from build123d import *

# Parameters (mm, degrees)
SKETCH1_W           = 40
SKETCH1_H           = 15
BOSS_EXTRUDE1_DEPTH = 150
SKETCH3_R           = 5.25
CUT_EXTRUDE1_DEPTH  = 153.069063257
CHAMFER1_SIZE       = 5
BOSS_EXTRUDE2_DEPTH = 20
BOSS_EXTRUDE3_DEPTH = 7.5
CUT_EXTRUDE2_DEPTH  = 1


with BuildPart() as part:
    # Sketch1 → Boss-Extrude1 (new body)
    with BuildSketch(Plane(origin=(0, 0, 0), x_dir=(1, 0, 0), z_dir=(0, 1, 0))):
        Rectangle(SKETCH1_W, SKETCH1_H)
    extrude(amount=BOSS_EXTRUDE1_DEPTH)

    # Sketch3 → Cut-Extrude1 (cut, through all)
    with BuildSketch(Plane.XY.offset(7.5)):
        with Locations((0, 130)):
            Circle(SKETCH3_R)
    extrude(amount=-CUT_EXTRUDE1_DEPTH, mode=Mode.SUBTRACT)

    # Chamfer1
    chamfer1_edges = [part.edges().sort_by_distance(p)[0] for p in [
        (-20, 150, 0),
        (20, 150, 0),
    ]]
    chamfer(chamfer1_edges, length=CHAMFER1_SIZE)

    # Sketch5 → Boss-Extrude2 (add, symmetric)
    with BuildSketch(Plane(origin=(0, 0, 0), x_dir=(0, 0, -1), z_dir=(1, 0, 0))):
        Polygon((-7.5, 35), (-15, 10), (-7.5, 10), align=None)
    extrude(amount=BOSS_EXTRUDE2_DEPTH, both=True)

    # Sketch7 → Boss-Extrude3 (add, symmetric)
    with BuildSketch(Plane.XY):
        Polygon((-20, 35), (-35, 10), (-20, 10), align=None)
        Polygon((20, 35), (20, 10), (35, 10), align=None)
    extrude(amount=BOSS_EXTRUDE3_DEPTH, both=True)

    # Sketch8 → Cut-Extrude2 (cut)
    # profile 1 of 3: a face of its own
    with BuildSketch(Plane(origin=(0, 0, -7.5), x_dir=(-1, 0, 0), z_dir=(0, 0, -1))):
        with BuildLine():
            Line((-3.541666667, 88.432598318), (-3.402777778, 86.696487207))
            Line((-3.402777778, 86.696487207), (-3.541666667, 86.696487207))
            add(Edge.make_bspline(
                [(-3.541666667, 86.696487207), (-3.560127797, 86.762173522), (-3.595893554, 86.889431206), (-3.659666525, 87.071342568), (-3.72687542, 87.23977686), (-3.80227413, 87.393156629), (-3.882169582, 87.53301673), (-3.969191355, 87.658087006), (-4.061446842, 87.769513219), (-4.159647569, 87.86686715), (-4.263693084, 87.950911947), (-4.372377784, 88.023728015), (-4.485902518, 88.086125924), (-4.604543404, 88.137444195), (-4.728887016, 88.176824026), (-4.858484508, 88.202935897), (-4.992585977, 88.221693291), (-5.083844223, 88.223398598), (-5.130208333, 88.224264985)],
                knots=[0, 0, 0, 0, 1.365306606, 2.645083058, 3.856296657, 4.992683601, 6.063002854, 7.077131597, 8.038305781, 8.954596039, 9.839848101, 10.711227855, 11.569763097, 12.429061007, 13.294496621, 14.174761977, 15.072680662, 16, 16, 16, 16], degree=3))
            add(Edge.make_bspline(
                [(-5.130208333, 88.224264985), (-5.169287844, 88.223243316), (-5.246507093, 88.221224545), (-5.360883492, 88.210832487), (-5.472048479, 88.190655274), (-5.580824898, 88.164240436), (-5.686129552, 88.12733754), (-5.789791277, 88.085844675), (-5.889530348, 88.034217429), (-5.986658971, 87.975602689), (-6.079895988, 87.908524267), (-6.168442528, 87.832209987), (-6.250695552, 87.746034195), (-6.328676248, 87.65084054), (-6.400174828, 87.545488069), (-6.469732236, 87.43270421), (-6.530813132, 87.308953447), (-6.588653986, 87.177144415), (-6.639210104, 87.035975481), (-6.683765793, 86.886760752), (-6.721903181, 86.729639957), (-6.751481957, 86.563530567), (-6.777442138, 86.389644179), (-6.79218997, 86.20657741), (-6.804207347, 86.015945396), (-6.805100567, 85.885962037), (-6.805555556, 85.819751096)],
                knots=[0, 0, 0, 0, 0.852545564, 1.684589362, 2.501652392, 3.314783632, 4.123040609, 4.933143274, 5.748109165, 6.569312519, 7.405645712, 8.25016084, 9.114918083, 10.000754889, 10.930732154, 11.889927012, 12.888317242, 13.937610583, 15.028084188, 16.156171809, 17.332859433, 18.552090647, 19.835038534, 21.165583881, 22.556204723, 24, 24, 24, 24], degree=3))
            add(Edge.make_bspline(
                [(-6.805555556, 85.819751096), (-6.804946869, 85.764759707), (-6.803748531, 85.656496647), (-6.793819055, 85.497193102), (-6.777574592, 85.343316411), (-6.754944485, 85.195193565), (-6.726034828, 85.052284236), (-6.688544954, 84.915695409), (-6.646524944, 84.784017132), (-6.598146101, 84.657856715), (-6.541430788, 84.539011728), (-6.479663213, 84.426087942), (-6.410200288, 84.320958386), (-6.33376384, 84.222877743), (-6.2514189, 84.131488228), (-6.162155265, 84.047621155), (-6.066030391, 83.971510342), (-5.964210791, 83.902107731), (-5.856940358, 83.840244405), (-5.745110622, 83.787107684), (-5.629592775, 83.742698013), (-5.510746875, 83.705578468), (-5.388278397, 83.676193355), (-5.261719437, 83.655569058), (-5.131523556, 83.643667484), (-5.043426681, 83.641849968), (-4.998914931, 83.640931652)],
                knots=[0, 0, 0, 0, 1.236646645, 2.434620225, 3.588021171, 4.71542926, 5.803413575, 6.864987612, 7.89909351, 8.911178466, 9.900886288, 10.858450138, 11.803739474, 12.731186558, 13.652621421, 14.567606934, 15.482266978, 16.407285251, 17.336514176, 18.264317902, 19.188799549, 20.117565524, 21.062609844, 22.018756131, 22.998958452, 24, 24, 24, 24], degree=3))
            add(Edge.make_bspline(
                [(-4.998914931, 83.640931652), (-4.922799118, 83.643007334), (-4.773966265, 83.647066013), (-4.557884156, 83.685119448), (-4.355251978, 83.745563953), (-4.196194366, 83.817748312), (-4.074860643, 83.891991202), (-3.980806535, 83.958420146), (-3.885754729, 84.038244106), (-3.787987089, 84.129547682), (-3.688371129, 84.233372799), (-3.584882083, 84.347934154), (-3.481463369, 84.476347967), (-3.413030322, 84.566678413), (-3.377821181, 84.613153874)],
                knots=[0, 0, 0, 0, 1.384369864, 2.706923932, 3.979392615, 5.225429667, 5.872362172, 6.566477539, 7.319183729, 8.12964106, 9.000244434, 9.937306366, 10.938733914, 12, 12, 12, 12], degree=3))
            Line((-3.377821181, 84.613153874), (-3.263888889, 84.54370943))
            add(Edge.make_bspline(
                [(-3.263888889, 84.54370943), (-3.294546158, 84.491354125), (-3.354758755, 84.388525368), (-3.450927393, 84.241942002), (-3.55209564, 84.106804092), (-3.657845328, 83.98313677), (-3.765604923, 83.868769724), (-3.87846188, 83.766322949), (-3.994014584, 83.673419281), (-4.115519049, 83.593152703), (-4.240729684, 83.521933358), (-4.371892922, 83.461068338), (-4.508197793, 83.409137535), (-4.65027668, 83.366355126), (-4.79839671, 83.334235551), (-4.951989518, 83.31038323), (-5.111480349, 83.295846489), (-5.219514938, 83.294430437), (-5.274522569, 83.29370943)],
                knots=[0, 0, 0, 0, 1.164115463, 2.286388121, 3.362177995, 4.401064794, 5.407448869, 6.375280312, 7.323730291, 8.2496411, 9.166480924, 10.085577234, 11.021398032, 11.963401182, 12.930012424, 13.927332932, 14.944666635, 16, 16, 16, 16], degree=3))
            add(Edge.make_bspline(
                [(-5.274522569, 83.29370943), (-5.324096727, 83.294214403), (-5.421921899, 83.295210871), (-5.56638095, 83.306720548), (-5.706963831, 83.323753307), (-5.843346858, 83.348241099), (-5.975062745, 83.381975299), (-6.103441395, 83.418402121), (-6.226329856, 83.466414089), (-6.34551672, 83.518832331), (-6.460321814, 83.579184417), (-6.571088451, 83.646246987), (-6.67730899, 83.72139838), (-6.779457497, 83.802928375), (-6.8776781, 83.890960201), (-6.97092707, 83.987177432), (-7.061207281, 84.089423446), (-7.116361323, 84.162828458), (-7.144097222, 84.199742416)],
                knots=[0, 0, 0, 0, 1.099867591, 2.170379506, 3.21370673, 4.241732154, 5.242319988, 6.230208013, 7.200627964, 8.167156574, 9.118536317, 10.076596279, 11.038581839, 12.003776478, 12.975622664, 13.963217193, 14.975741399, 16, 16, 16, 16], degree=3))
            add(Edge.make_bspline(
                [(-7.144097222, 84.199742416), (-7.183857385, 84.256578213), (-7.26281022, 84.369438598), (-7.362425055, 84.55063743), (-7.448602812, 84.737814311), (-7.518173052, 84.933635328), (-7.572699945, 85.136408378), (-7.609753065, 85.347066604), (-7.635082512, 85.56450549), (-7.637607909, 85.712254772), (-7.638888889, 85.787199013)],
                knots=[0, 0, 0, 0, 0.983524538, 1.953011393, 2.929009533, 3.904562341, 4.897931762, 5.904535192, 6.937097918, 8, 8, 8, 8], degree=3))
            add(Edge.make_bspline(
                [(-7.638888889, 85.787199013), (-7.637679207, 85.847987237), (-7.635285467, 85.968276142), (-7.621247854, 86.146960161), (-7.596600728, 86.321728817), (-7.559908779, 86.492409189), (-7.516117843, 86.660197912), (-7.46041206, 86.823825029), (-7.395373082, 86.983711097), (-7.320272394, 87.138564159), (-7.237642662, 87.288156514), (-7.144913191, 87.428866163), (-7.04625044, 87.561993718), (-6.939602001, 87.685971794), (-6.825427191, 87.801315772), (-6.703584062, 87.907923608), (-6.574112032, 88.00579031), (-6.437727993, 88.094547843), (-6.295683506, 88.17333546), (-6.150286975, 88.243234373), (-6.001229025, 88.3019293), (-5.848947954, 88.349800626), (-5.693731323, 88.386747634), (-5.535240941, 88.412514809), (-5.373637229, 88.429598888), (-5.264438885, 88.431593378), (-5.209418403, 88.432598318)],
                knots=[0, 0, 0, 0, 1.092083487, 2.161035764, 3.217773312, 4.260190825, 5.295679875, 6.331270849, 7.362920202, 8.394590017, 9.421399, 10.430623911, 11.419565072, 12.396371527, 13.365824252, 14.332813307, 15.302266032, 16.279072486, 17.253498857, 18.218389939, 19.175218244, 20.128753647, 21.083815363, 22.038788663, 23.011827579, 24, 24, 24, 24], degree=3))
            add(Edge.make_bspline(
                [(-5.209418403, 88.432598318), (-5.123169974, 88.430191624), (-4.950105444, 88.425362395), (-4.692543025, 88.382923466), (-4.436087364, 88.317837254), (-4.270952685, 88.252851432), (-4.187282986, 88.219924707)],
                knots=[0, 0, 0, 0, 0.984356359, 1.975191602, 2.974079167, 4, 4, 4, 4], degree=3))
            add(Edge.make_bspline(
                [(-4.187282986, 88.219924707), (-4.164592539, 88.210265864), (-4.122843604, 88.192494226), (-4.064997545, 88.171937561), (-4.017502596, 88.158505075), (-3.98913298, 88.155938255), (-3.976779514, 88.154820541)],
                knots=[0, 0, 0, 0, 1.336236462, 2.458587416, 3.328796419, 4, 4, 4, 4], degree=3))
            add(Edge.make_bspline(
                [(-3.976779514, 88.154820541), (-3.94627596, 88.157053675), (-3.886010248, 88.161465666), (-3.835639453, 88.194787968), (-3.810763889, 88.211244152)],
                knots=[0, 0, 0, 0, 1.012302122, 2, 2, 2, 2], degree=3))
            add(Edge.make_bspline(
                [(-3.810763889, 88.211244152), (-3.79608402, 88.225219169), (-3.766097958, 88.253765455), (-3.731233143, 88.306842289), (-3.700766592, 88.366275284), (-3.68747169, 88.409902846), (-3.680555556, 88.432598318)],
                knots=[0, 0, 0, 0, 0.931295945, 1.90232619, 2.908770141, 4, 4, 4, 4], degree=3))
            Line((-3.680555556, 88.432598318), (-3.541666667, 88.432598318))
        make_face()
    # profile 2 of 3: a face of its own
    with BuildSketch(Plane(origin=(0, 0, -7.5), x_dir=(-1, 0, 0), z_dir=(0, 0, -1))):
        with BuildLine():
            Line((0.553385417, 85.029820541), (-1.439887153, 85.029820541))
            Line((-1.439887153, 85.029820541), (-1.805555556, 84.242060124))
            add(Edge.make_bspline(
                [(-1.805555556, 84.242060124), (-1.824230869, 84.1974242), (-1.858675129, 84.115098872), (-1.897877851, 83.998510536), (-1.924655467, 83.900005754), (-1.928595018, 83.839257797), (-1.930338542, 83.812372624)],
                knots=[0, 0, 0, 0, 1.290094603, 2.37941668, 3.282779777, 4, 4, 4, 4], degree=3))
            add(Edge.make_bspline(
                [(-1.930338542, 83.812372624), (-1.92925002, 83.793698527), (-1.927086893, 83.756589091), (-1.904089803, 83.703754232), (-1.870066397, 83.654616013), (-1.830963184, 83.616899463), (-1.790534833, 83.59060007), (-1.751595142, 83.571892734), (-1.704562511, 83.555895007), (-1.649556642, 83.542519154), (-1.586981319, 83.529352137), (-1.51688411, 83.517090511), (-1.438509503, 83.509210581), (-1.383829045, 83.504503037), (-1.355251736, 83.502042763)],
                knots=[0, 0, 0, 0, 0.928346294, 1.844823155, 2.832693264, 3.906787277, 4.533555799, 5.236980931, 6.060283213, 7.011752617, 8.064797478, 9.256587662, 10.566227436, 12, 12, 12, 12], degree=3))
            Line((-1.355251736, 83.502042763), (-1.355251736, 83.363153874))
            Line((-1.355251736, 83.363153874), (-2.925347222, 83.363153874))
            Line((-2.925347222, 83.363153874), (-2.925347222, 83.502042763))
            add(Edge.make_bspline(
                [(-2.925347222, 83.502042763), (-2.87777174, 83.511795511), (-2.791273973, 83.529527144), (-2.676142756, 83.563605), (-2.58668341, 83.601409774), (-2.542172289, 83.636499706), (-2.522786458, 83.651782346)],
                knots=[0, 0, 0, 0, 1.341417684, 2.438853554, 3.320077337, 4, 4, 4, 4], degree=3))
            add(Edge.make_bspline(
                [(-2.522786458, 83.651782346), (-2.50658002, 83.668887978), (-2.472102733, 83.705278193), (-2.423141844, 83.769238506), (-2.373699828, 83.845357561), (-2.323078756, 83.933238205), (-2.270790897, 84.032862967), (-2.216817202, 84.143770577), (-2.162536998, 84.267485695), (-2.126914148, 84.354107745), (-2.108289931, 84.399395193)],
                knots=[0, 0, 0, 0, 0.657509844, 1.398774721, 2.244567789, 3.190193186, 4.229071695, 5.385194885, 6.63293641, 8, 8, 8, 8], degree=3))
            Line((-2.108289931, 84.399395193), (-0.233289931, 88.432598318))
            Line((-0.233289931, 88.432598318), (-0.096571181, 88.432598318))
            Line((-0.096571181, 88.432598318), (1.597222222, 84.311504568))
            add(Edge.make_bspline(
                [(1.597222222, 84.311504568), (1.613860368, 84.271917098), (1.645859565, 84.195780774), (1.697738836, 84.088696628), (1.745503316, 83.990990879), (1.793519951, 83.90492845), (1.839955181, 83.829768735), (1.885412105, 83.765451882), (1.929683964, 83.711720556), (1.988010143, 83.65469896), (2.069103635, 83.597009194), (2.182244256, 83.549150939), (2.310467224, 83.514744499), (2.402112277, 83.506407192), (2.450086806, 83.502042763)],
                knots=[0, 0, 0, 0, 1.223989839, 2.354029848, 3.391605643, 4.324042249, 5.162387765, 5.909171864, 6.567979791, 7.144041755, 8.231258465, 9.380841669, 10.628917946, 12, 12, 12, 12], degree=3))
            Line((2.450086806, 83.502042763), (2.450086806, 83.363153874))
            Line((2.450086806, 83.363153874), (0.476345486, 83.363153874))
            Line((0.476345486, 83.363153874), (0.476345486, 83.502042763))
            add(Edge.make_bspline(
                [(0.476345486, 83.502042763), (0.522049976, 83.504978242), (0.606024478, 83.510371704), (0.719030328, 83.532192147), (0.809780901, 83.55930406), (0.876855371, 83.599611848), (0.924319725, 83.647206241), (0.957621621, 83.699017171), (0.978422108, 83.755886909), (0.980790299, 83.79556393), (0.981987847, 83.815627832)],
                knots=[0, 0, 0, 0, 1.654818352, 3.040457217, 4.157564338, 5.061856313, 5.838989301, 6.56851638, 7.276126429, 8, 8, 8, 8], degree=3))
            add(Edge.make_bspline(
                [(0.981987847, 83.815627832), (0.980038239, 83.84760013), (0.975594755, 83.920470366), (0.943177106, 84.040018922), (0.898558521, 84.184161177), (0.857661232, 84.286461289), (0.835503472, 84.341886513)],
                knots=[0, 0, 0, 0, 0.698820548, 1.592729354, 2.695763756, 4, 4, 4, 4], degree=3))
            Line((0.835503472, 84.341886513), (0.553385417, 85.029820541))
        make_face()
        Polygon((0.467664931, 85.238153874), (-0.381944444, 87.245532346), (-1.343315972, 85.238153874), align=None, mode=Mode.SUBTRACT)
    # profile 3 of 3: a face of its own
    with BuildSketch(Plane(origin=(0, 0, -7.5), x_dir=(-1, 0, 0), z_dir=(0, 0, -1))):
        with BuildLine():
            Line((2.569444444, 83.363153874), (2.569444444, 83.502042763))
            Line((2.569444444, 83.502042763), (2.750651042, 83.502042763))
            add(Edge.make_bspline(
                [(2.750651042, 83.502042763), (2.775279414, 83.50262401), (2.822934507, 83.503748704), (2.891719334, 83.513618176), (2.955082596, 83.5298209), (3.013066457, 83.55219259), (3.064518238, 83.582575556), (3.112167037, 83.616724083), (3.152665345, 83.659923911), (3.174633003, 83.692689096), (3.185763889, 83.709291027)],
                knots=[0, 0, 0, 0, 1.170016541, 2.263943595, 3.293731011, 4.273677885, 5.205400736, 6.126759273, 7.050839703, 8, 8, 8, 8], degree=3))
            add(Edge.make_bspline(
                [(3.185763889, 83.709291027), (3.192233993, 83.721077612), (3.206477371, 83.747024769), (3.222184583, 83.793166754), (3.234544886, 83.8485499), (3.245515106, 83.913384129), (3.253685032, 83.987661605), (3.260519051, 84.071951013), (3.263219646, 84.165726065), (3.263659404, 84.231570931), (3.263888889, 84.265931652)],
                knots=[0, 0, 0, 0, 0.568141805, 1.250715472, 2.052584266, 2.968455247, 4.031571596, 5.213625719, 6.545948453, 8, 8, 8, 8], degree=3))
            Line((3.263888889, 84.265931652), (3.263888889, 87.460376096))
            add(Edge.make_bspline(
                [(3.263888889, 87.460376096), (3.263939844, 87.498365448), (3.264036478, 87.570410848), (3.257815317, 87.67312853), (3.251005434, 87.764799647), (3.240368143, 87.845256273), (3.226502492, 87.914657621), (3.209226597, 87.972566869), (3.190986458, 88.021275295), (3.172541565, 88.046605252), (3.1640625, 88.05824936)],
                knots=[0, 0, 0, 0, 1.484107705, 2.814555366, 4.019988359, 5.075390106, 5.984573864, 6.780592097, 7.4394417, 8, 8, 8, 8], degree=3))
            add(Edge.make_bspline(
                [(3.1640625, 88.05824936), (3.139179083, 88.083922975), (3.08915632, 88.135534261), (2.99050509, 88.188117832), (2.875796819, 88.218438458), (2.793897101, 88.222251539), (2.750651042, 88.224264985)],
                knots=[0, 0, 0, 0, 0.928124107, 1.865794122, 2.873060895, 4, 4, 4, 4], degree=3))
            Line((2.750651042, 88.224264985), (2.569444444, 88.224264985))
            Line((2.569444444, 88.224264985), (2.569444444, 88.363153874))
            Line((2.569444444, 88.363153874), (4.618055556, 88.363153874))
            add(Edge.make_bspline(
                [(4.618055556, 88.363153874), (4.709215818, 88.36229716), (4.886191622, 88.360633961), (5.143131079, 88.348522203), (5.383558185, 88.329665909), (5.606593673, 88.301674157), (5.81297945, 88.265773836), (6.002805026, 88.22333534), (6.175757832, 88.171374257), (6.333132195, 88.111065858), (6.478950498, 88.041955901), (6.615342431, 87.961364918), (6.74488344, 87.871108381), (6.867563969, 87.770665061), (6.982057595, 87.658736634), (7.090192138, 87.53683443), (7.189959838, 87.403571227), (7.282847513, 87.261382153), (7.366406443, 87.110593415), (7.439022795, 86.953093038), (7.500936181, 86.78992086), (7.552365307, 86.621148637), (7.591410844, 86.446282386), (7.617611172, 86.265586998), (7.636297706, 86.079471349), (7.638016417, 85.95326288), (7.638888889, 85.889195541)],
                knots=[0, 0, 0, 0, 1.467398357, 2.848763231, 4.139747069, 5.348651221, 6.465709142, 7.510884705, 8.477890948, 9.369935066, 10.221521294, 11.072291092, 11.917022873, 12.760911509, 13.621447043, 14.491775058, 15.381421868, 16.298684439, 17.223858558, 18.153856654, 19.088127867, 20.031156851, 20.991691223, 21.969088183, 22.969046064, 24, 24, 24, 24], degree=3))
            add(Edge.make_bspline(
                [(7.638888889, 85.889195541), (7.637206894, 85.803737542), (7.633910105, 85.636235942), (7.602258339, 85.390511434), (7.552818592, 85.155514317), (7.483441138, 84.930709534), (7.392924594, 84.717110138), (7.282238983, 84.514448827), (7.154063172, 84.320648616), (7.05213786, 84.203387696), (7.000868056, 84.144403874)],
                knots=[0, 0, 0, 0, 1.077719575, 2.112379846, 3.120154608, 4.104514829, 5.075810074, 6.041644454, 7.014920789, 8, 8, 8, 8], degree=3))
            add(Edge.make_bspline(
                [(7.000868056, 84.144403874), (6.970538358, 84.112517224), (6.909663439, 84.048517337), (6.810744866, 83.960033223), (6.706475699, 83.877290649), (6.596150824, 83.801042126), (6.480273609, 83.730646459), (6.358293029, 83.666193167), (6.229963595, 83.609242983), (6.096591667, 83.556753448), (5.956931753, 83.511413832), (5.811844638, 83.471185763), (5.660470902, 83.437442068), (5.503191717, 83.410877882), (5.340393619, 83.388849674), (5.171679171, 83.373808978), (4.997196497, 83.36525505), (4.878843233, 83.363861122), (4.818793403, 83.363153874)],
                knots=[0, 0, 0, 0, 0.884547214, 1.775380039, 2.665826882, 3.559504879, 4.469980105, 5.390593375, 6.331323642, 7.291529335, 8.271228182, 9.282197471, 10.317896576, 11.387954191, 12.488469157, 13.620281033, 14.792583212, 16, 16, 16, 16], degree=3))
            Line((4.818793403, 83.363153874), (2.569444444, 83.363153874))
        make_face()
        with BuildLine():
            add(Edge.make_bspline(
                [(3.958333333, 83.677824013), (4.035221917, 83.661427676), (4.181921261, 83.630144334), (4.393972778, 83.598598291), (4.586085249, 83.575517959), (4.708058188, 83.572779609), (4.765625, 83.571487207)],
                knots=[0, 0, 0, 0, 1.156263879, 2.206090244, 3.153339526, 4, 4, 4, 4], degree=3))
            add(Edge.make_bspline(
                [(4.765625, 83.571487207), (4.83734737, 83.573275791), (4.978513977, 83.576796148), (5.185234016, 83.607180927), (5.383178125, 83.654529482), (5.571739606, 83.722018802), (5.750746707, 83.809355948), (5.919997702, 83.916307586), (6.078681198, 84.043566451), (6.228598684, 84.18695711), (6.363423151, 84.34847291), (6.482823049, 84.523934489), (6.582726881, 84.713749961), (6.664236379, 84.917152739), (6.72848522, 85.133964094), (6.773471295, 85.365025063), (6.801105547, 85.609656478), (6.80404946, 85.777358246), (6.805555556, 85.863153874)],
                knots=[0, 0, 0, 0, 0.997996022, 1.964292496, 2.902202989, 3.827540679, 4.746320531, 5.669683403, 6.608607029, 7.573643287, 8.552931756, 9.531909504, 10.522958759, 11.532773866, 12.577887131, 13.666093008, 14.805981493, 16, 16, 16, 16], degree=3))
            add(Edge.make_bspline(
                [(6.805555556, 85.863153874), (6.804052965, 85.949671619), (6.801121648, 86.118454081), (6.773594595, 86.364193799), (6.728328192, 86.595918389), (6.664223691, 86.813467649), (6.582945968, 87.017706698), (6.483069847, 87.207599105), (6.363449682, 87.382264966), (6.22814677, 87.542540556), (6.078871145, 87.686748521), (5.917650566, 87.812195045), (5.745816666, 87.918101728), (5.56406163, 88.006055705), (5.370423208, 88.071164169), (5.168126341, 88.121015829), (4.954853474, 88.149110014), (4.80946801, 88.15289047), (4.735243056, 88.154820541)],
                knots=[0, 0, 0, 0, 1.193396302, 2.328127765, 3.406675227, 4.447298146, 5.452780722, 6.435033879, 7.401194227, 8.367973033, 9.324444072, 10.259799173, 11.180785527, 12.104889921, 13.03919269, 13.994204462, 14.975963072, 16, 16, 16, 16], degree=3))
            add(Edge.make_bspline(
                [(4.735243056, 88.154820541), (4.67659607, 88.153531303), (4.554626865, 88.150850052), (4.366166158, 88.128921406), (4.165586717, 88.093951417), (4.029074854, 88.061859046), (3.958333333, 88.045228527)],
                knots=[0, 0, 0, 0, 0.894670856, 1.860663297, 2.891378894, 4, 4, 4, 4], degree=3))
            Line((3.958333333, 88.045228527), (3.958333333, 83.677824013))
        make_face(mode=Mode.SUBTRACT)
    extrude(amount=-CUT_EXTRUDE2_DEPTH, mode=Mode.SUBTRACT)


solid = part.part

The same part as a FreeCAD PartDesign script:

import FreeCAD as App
import Part
import Sketcher

V = App.Vector


def edges_at(feature, points):
    """Names of the edges that pass closest to the given points."""
    edges = feature.Shape.Edges
    near = lambda p: min(range(len(edges)), key=lambda i: edges[i].distToShape(Part.Vertex(*p))[0])
    return sorted({f"Edge{near(p) + 1}" for p in points})


def add_polygon(sketch, points):
    """Adds a closed chain of lines whose ends are joined by coincident constraints."""
    first, n = sketch.GeometryCount, len(points)
    for a, b in zip(points, points[1:] + points[:1]):
        sketch.addGeometry(Part.LineSegment(App.Vector(*a, 0), App.Vector(*b, 0)), False)
    for i in range(n):
        sketch.addConstraint(Sketcher.Constraint("Coincident", first + i, 2, first + (i + 1) % n, 1))

doc = App.newDocument("Part")
body = doc.addObject("PartDesign::Body", "Body")

# Sketch on XZ plane
sketch1 = body.newObject("Sketcher::SketchObject", "Sketch")
sketch1.AttachmentSupport = (doc.getObject("XZ_Plane"), [""])
sketch1.MapMode = "FlatFace"
add_polygon(sketch1, [(-20, -8), (-20, 8), (20, 8), (20, -8)])  # lines 0-3
sketch1.addConstraint([
    Sketcher.Constraint("Vertical", 0),
    Sketcher.Constraint("Horizontal", 1),
    Sketcher.Constraint("Vertical", 2),
    Sketcher.Constraint("Horizontal", 3),
    Sketcher.Constraint("Symmetric", 0, 2, 2, 2, -1, 1),
    Sketcher.Constraint("DistanceX", 1, 1, 1, 2, 40.0),
    Sketcher.Constraint("DistanceY", 0, 1, 0, 2, 15.0),
])
pad1 = body.newObject("PartDesign::Pad", "Pad")
pad1.Profile = sketch1
pad1.Length = 150
pad1.Reversed = True

# Sketch on XY plane
sketch2 = body.newObject("Sketcher::SketchObject", "Sketch001")
sketch2.AttachmentSupport = (doc.getObject("XY_Plane"), [""])
sketch2.MapMode = "FlatFace"
sketch2.AttachmentOffset = App.Placement(V(0, 0, 7.5), App.Rotation())
sketch2.addGeometry(Part.Circle(V(0, 130, 0), V(0, 0, 1), 5), False)
sketch2.addConstraint([
    Sketcher.Constraint("PointOnObject", 0, 3, -2),
    Sketcher.Constraint("Diameter", 0, 10.5),
    Sketcher.Constraint("DistanceY", -1, 1, 0, 3, 130.0),
])
pocket1 = body.newObject("PartDesign::Pocket", "Pocket")
pocket1.Profile = sketch2
pocket1.Type = "ThroughAll"
doc.recompute()

chamfer = body.newObject("PartDesign::Chamfer", "Chamfer")
chamfer.Base = (pocket1, edges_at(pocket1, [(-20, 150, 0), (20, 150, 0)]))
chamfer.Size = 5

# Sketch on YZ plane
sketch3 = body.newObject("Sketcher::SketchObject", "Sketch002")
sketch3.AttachmentSupport = (doc.getObject("YZ_Plane"), [""])
sketch3.MapMode = "FlatFace"
add_polygon(sketch3, [(35, 8), (10, 15), (10, 8)])  # lines 0-2
sketch3.addConstraint([
    Sketcher.Constraint("Vertical", 1),
    Sketcher.Constraint("Horizontal", 2),
    Sketcher.Constraint("DistanceX", 2, 1, 2, 2, 25.0),
    Sketcher.Constraint("DistanceY", 1, 2, 1, 1, 7.5),
    Sketcher.Constraint("DistanceX", -1, 1, 0, 2, 10.0),
    Sketcher.Constraint("DistanceY", -1, 1, 0, 2, 15.0),
])
pad2 = body.newObject("PartDesign::Pad", "Pad001")
pad2.Profile = sketch3
pad2.Length = 40
pad2.Midplane = True

# Sketch on XY plane
sketch4 = body.newObject("Sketcher::SketchObject", "Sketch003")
sketch4.AttachmentSupport = (doc.getObject("XY_Plane"), [""])
sketch4.MapMode = "FlatFace"
add_polygon(sketch4, [(-20, 35), (-35, 10), (-20, 10)])  # lines 0-2
add_polygon(sketch4, [(20, 35), (20, 10), (35, 10)])  # lines 3-5
sketch4.addConstraint([
    Sketcher.Constraint("Horizontal", 1),
    Sketcher.Constraint("Vertical", 2),
    Sketcher.Constraint("Vertical", 3),
    Sketcher.Constraint("Horizontal", 4),
    Sketcher.Constraint("Symmetric", 1, 2, 3, 2, -2),
    Sketcher.Constraint("Horizontal", 2, 2, 5, 2),
    Sketcher.Constraint("Equal", 1, 4),
    Sketcher.Constraint("DistanceX", 1, 1, 1, 2, 15.0),
    Sketcher.Constraint("DistanceY", 2, 1, 2, 2, 25.0),
    Sketcher.Constraint("DistanceX", 0, 2, -1, 1, 35.0),
    Sketcher.Constraint("DistanceY", -1, 1, 0, 2, 10.0),
])
pad3 = body.newObject("PartDesign::Pad", "Pad002")
pad3.Profile = sketch4
pad3.Length = 15
pad3.Midplane = True

# Sketch on XY plane
sketch5 = body.newObject("Sketcher::SketchObject", "Sketch004")
sketch5.AttachmentSupport = (doc.getObject("XY_Plane"), [""])
sketch5.MapMode = "FlatFace"
sketch5.AttachmentOffset = App.Placement(V(0, 0, -7.5), App.Rotation())
sketch5.addGeometry(Part.LineSegment(V(3.402778, 86.696487, 0), V(3.541667, 88.432598, 0)), False)  # 0
sketch5.addGeometry(Part.LineSegment(V(3.541667, 88.432598, 0), V(3.680556, 88.432598, 0)), False)  # 1
sketch5.addGeometry(Part.BSplineCurve([V(3.810764, 88.211244, 0), V(3.796084, 88.225219, 0), V(3.766098, 88.253765, 0), V(3.731233, 88.306842, 0), V(3.700767, 88.366275, 0), V(3.687472, 88.409903, 0), V(3.680556, 88.432598, 0)], [4, 1, 1, 1, 4], [0, 0.931295945, 1.90232619, 2.908770141, 4], False, 3, [1, 1, 1, 1, 1, 1, 1], False), False)  # 2
sketch5.addGeometry(Part.BSplineCurve([V(3.97678, 88.154821, 0), V(3.946276, 88.157054, 0), V(3.88601, 88.161466, 0), V(3.835639, 88.194788, 0), V(3.810764, 88.211244, 0)], [4, 1, 4], [0, 1.012302122, 2], False, 3, [1, 1, 1, 1, 1], False), False)  # 3
sketch5.addGeometry(Part.BSplineCurve([V(4.187283, 88.219925, 0), V(4.164593, 88.210266, 0), V(4.122844, 88.192494, 0), V(4.064998, 88.171938, 0), V(4.017503, 88.158505, 0), V(3.989133, 88.155938, 0), V(3.97678, 88.154821, 0)], [4, 1, 1, 1, 4], [0, 1.336236462, 2.458587416, 3.328796419, 4], False, 3, [1, 1, 1, 1, 1, 1, 1], False), False)  # 4
sketch5.addGeometry(Part.BSplineCurve([V(5.209418, 88.432598, 0), V(5.12317, 88.430192, 0), V(4.950105, 88.425362, 0), V(4.692543, 88.382923, 0), V(4.436087, 88.317837, 0), V(4.270953, 88.252851, 0), V(4.187283, 88.219925, 0)], [4, 1, 1, 1, 4], [0, 0.984356359, 1.975191602, 2.974079167, 4], False, 3, [1, 1, 1, 1, 1, 1, 1], False), False)  # 5
sketch5.addGeometry(Part.BSplineCurve([V(7.638889, 85.787199, 0), V(7.637679, 85.847987, 0), V(7.635285, 85.968276, 0), V(7.621248, 86.14696, 0), V(7.596601, 86.321729, 0), V(7.559909, 86.492409, 0), V(7.516118, 86.660198, 0), V(7.460412, 86.823825, 0), V(7.395373, 86.983711, 0), V(7.320272, 87.138564, 0), V(7.237643, 87.288157, 0), V(7.144913, 87.428866, 0), V(7.04625, 87.561994, 0), V(6.939602, 87.685972, 0), V(6.825427, 87.801316, 0), V(6.703584, 87.907924, 0), V(6.574112, 88.00579, 0), V(6.437728, 88.094548, 0), V(6.295684, 88.173335, 0), V(6.150287, 88.243234, 0), V(6.001229, 88.301929, 0), V(5.848948, 88.349801, 0), V(5.693731, 88.386748, 0), V(5.535241, 88.412515, 0), V(5.373637, 88.429599, 0), V(5.264439, 88.431593, 0), V(5.209418, 88.432598, 0)], [4, 1, 1, 1, 1, 1, 1, 1, 1, 1, 1, 1, 1, 1, 1, 1, 1, 1, 1, 1, 1, 1, 1, 1, 4], [0, 1.092083487, 2.161035764, 3.217773312, 4.260190825, 5.295679875, 6.331270849, 7.362920202, 8.394590017, 9.421399, 10.430623911, 11.419565072, 12.396371527, 13.365824252, 14.332813307, 15.302266032, 16.279072486, 17.253498857, 18.218389939, 19.175218244, 20.128753647, 21.083815363, 22.038788663, 23.011827579, 24], False, 3, [1, 1, 1, 1, 1, 1, 1, 1, 1, 1, 1, 1, 1, 1, 1, 1, 1, 1, 1, 1, 1, 1, 1, 1, 1, 1, 1], False), False)  # 6
sketch5.addGeometry(Part.BSplineCurve([V(7.144097, 84.199742, 0), V(7.183857, 84.256578, 0), V(7.26281, 84.369439, 0), V(7.362425, 84.550637, 0), V(7.448603, 84.737814, 0), V(7.518173, 84.933635, 0), V(7.5727, 85.136408, 0), V(7.609753, 85.347067, 0), V(7.635083, 85.564505, 0), V(7.637608, 85.712255, 0), V(7.638889, 85.787199, 0)], [4, 1, 1, 1, 1, 1, 1, 1, 4], [0, 0.983524538, 1.953011393, 2.929009533, 3.904562341, 4.897931762, 5.904535192, 6.937097918, 8], False, 3, [1, 1, 1, 1, 1, 1, 1, 1, 1, 1, 1], False), False)  # 7
sketch5.addGeometry(Part.BSplineCurve([V(5.274523, 83.293709, 0), V(5.324097, 83.294214, 0), V(5.421922, 83.295211, 0), V(5.566381, 83.306721, 0), V(5.706964, 83.323753, 0), V(5.843347, 83.348241, 0), V(5.975063, 83.381975, 0), V(6.103441, 83.418402, 0), V(6.22633, 83.466414, 0), V(6.345517, 83.518832, 0), V(6.460322, 83.579184, 0), V(6.571088, 83.646247, 0), V(6.677309, 83.721398, 0), V(6.779457, 83.802928, 0), V(6.877678, 83.89096, 0), V(6.970927, 83.987177, 0), V(7.061207, 84.089423, 0), V(7.116361, 84.162828, 0), V(7.144097, 84.199742, 0)], [4, 1, 1, 1, 1, 1, 1, 1, 1, 1, 1, 1, 1, 1, 1, 1, 4], [0, 1.099867591, 2.170379506, 3.21370673, 4.241732154, 5.242319988, 6.230208013, 7.200627964, 8.167156574, 9.118536317, 10.076596279, 11.038581839, 12.003776478, 12.975622664, 13.963217193, 14.975741399, 16], False, 3, [1, 1, 1, 1, 1, 1, 1, 1, 1, 1, 1, 1, 1, 1, 1, 1, 1, 1, 1], False), False)  # 8
sketch5.addGeometry(Part.BSplineCurve([V(3.263889, 84.543709, 0), V(3.294546, 84.491354, 0), V(3.354759, 84.388525, 0), V(3.450927, 84.241942, 0), V(3.552096, 84.106804, 0), V(3.657845, 83.983137, 0), V(3.765605, 83.86877, 0), V(3.878462, 83.766323, 0), V(3.994015, 83.673419, 0), V(4.115519, 83.593153, 0), V(4.24073, 83.521933, 0), V(4.371893, 83.461068, 0), V(4.508198, 83.409138, 0), V(4.650277, 83.366355, 0), V(4.798397, 83.334236, 0), V(4.95199, 83.310383, 0), V(5.11148, 83.295846, 0), V(5.219515, 83.29443, 0), V(5.274523, 83.293709, 0)], [4, 1, 1, 1, 1, 1, 1, 1, 1, 1, 1, 1, 1, 1, 1, 1, 4], [0, 1.164115463, 2.286388121, 3.362177995, 4.401064794, 5.407448869, 6.375280312, 7.323730291, 8.2496411, 9.166480924, 10.085577234, 11.021398032, 11.963401182, 12.930012424, 13.927332932, 14.944666635, 16], False, 3, [1, 1, 1, 1, 1, 1, 1, 1, 1, 1, 1, 1, 1, 1, 1, 1, 1, 1, 1], False), False)  # 9
sketch5.addGeometry(Part.LineSegment(V(3.263889, 84.543709, 0), V(3.377821, 84.613154, 0)), False)  # 10
sketch5.addGeometry(Part.BSplineCurve([V(4.998915, 83.640932, 0), V(4.922799, 83.643007, 0), V(4.773966, 83.647066, 0), V(4.557884, 83.685119, 0), V(4.355252, 83.745564, 0), V(4.196194, 83.817748, 0), V(4.074861, 83.891991, 0), V(3.980807, 83.95842, 0), V(3.885755, 84.038244, 0), V(3.787987, 84.129548, 0), V(3.688371, 84.233373, 0), V(3.584882, 84.347934, 0), V(3.481463, 84.476348, 0), V(3.41303, 84.566678, 0), V(3.377821, 84.613154, 0)], [4, 1, 1, 1, 1, 1, 1, 1, 1, 1, 1, 1, 4], [0, 1.384369864, 2.706923932, 3.979392615, 5.225429667, 5.872362172, 6.566477539, 7.319183729, 8.12964106, 9.000244434, 9.937306366, 10.938733914, 12], False, 3, [1, 1, 1, 1, 1, 1, 1, 1, 1, 1, 1, 1, 1, 1, 1], False), False)  # 11
sketch5.addGeometry(Part.BSplineCurve([V(6.805556, 85.819751, 0), V(6.804947, 85.76476, 0), V(6.803749, 85.656497, 0), V(6.793819, 85.497193, 0), V(6.777575, 85.343316, 0), V(6.754944, 85.195194, 0), V(6.726035, 85.052284, 0), V(6.688545, 84.915695, 0), V(6.646525, 84.784017, 0), V(6.598146, 84.657857, 0), V(6.541431, 84.539012, 0), V(6.479663, 84.426088, 0), V(6.4102, 84.320958, 0), V(6.333764, 84.222878, 0), V(6.251419, 84.131488, 0), V(6.162155, 84.047621, 0), V(6.06603, 83.97151, 0), V(5.964211, 83.902108, 0), V(5.85694, 83.840244, 0), V(5.745111, 83.787108, 0), V(5.629593, 83.742698, 0), V(5.510747, 83.705578, 0), V(5.388278, 83.676193, 0), V(5.261719, 83.655569, 0), V(5.131524, 83.643667, 0), V(5.043427, 83.64185, 0), V(4.998915, 83.640932, 0)], [4, 1, 1, 1, 1, 1, 1, 1, 1, 1, 1, 1, 1, 1, 1, 1, 1, 1, 1, 1, 1, 1, 1, 1, 4], [0, 1.236646645, 2.434620225, 3.588021171, 4.71542926, 5.803413575, 6.864987612, 7.89909351, 8.911178466, 9.900886288, 10.858450138, 11.803739474, 12.731186558, 13.652621421, 14.567606934, 15.482266978, 16.407285251, 17.336514176, 18.264317902, 19.188799549, 20.117565524, 21.062609844, 22.018756131, 22.998958452, 24], False, 3, [1, 1, 1, 1, 1, 1, 1, 1, 1, 1, 1, 1, 1, 1, 1, 1, 1, 1, 1, 1, 1, 1, 1, 1, 1, 1, 1], False), False)  # 12
sketch5.addGeometry(Part.BSplineCurve([V(5.130208, 88.224265, 0), V(5.169288, 88.223243, 0), V(5.246507, 88.221225, 0), V(5.360883, 88.210832, 0), V(5.472048, 88.190655, 0), V(5.580825, 88.16424, 0), V(5.68613, 88.127338, 0), V(5.789791, 88.085845, 0), V(5.88953, 88.034217, 0), V(5.986659, 87.975603, 0), V(6.079896, 87.908524, 0), V(6.168443, 87.83221, 0), V(6.250696, 87.746034, 0), V(6.328676, 87.650841, 0), V(6.400175, 87.545488, 0), V(6.469732, 87.432704, 0), V(6.530813, 87.308953, 0), V(6.588654, 87.177144, 0), V(6.63921, 87.035975, 0), V(6.683766, 86.886761, 0), V(6.721903, 86.72964, 0), V(6.751482, 86.563531, 0), V(6.777442, 86.389644, 0), V(6.79219, 86.206577, 0), V(6.804207, 86.015945, 0), V(6.805101, 85.885962, 0), V(6.805556, 85.819751, 0)], [4, 1, 1, 1, 1, 1, 1, 1, 1, 1, 1, 1, 1, 1, 1, 1, 1, 1, 1, 1, 1, 1, 1, 1, 4], [0, 0.852545564, 1.684589362, 2.501652392, 3.314783632, 4.123040609, 4.933143274, 5.748109165, 6.569312519, 7.405645712, 8.25016084, 9.114918083, 10.000754889, 10.930732154, 11.889927012, 12.888317242, 13.937610583, 15.028084188, 16.156171809, 17.332859433, 18.552090647, 19.835038534, 21.165583881, 22.556204723, 24], False, 3, [1, 1, 1, 1, 1, 1, 1, 1, 1, 1, 1, 1, 1, 1, 1, 1, 1, 1, 1, 1, 1, 1, 1, 1, 1, 1, 1], False), False)  # 13
sketch5.addGeometry(Part.BSplineCurve([V(3.541667, 86.696487, 0), V(3.560128, 86.762174, 0), V(3.595894, 86.889431, 0), V(3.659667, 87.071343, 0), V(3.726875, 87.239777, 0), V(3.802274, 87.393157, 0), V(3.88217, 87.533017, 0), V(3.969191, 87.658087, 0), V(4.061447, 87.769513, 0), V(4.159648, 87.866867, 0), V(4.263693, 87.950912, 0), V(4.372378, 88.023728, 0), V(4.485903, 88.086126, 0), V(4.604543, 88.137444, 0), V(4.728887, 88.176824, 0), V(4.858485, 88.202936, 0), V(4.992586, 88.221693, 0), V(5.083844, 88.223399, 0), V(5.130208, 88.224265, 0)], [4, 1, 1, 1, 1, 1, 1, 1, 1, 1, 1, 1, 1, 1, 1, 1, 4], [0, 1.365306606, 2.645083058, 3.856296657, 4.992683601, 6.063002854, 7.077131597, 8.038305781, 8.954596039, 9.839848101, 10.711227855, 11.569763097, 12.429061007, 13.294496621, 14.174761977, 15.072680662, 16], False, 3, [1, 1, 1, 1, 1, 1, 1, 1, 1, 1, 1, 1, 1, 1, 1, 1, 1, 1, 1], False), False)  # 14
sketch5.addGeometry(Part.LineSegment(V(3.541667, 86.696487, 0), V(3.402778, 86.696487, 0)), False)  # 15
sketch5.addGeometry(Part.LineSegment(V(1.439887, 85.029821, 0), V(-0.553385, 85.029821, 0)), False)  # 16
sketch5.addGeometry(Part.LineSegment(V(-0.553385, 85.029821, 0), V(-0.835503, 84.341887, 0)), False)  # 17
sketch5.addGeometry(Part.BSplineCurve([V(-0.981988, 83.815628, 0), V(-0.980038, 83.8476, 0), V(-0.975595, 83.92047, 0), V(-0.943177, 84.040019, 0), V(-0.898559, 84.184161, 0), V(-0.857661, 84.286461, 0), V(-0.835503, 84.341887, 0)], [4, 1, 1, 1, 4], [0, 0.698820548, 1.592729354, 2.695763756, 4], False, 3, [1, 1, 1, 1, 1, 1, 1], False), False)  # 18
sketch5.addGeometry(Part.BSplineCurve([V(-0.476345, 83.502043, 0), V(-0.52205, 83.504978, 0), V(-0.606024, 83.510372, 0), V(-0.71903, 83.532192, 0), V(-0.809781, 83.559304, 0), V(-0.876855, 83.599612, 0), V(-0.92432, 83.647206, 0), V(-0.957622, 83.699017, 0), V(-0.978422, 83.755887, 0), V(-0.98079, 83.795564, 0), V(-0.981988, 83.815628, 0)], [4, 1, 1, 1, 1, 1, 1, 1, 4], [0, 1.654818352, 3.040457217, 4.157564338, 5.061856313, 5.838989301, 6.56851638, 7.276126429, 8], False, 3, [1, 1, 1, 1, 1, 1, 1, 1, 1, 1, 1], False), False)  # 19
sketch5.addGeometry(Part.LineSegment(V(-0.476345, 83.502043, 0), V(-0.476345, 83.363154, 0)), False)  # 20
sketch5.addGeometry(Part.LineSegment(V(-0.476345, 83.363154, 0), V(-2.450087, 83.363154, 0)), False)  # 21
sketch5.addGeometry(Part.LineSegment(V(-2.450087, 83.363154, 0), V(-2.450087, 83.502043, 0)), False)  # 22
sketch5.addGeometry(Part.BSplineCurve([V(-1.597222, 84.311505, 0), V(-1.61386, 84.271917, 0), V(-1.64586, 84.195781, 0), V(-1.697739, 84.088697, 0), V(-1.745503, 83.990991, 0), V(-1.79352, 83.904928, 0), V(-1.839955, 83.829769, 0), V(-1.885412, 83.765452, 0), V(-1.929684, 83.711721, 0), V(-1.98801, 83.654699, 0), V(-2.069104, 83.597009, 0), V(-2.182244, 83.549151, 0), V(-2.310467, 83.514744, 0), V(-2.402112, 83.506407, 0), V(-2.450087, 83.502043, 0)], [4, 1, 1, 1, 1, 1, 1, 1, 1, 1, 1, 1, 4], [0, 1.223989839, 2.354029848, 3.391605643, 4.324042249, 5.162387765, 5.909171864, 6.567979791, 7.144041755, 8.231258465, 9.380841669, 10.628917946, 12], False, 3, [1, 1, 1, 1, 1, 1, 1, 1, 1, 1, 1, 1, 1, 1, 1], False), False)  # 23
sketch5.addGeometry(Part.LineSegment(V(-1.597222, 84.311505, 0), V(0.096571, 88.432598, 0)), False)  # 24
sketch5.addGeometry(Part.LineSegment(V(0.096571, 88.432598, 0), V(0.23329, 88.432598, 0)), False)  # 25
sketch5.addGeometry(Part.LineSegment(V(0.23329, 88.432598, 0), V(2.10829, 84.399395, 0)), False)  # 26
sketch5.addGeometry(Part.BSplineCurve([V(2.522786, 83.651782, 0), V(2.50658, 83.668888, 0), V(2.472103, 83.705278, 0), V(2.423142, 83.769239, 0), V(2.3737, 83.845358, 0), V(2.323079, 83.933238, 0), V(2.270791, 84.032863, 0), V(2.216817, 84.143771, 0), V(2.162537, 84.267486, 0), V(2.126914, 84.354108, 0), V(2.10829, 84.399395, 0)], [4, 1, 1, 1, 1, 1, 1, 1, 4], [0, 0.657509844, 1.398774721, 2.244567789, 3.190193186, 4.229071695, 5.385194885, 6.63293641, 8], False, 3, [1, 1, 1, 1, 1, 1, 1, 1, 1, 1, 1], False), False)  # 27
sketch5.addGeometry(Part.BSplineCurve([V(2.925347, 83.502043, 0), V(2.877772, 83.511796, 0), V(2.791274, 83.529527, 0), V(2.676143, 83.563605, 0), V(2.586683, 83.60141, 0), V(2.542172, 83.6365, 0), V(2.522786, 83.651782, 0)], [4, 1, 1, 1, 4], [0, 1.341417684, 2.438853554, 3.320077337, 4], False, 3, [1, 1, 1, 1, 1, 1, 1], False), False)  # 28
sketch5.addGeometry(Part.LineSegment(V(2.925347, 83.502043, 0), V(2.925347, 83.363154, 0)), False)  # 29
sketch5.addGeometry(Part.LineSegment(V(2.925347, 83.363154, 0), V(1.355252, 83.363154, 0)), False)  # 30
sketch5.addGeometry(Part.LineSegment(V(1.355252, 83.363154, 0), V(1.355252, 83.502043, 0)), False)  # 31
sketch5.addGeometry(Part.BSplineCurve([V(1.930339, 83.812373, 0), V(1.92925, 83.793699, 0), V(1.927087, 83.756589, 0), V(1.90409, 83.703754, 0), V(1.870066, 83.654616, 0), V(1.830963, 83.616899, 0), V(1.790535, 83.5906, 0), V(1.751595, 83.571893, 0), V(1.704563, 83.555895, 0), V(1.649557, 83.542519, 0), V(1.586981, 83.529352, 0), V(1.516884, 83.517091, 0), V(1.43851, 83.509211, 0), V(1.383829, 83.504503, 0), V(1.355252, 83.502043, 0)], [4, 1, 1, 1, 1, 1, 1, 1, 1, 1, 1, 1, 4], [0, 0.928346294, 1.844823155, 2.832693264, 3.906787277, 4.533555799, 5.236980931, 6.060283213, 7.011752617, 8.064797478, 9.256587662, 10.566227436, 12], False, 3, [1, 1, 1, 1, 1, 1, 1, 1, 1, 1, 1, 1, 1, 1, 1], False), False)  # 32
sketch5.addGeometry(Part.BSplineCurve([V(1.805556, 84.24206, 0), V(1.824231, 84.197424, 0), V(1.858675, 84.115099, 0), V(1.897878, 83.998511, 0), V(1.924655, 83.900006, 0), V(1.928595, 83.839258, 0), V(1.930339, 83.812373, 0)], [4, 1, 1, 1, 4], [0, 1.290094603, 2.37941668, 3.282779777, 4], False, 3, [1, 1, 1, 1, 1, 1, 1], False), False)  # 33
sketch5.addGeometry(Part.LineSegment(V(1.805556, 84.24206, 0), V(1.439887, 85.029821, 0)), False)  # 34
add_polygon(sketch5, [(-0.467665, 85.238154), (1.343316, 85.238154), (0.381944, 87.245532)])  # lines 35-37
sketch5.addGeometry(Part.LineSegment(V(-2.569444, 83.502043, 0), V(-2.569444, 83.363154, 0)), False)  # 38
sketch5.addGeometry(Part.LineSegment(V(-2.569444, 83.363154, 0), V(-4.818793, 83.363154, 0)), False)  # 39
sketch5.addGeometry(Part.BSplineCurve([V(-7.000868, 84.144404, 0), V(-6.970538, 84.112517, 0), V(-6.909663, 84.048517, 0), V(-6.810745, 83.960033, 0), V(-6.706476, 83.877291, 0), V(-6.596151, 83.801042, 0), V(-6.480274, 83.730646, 0), V(-6.358293, 83.666193, 0), V(-6.229964, 83.609243, 0), V(-6.096592, 83.556753, 0), V(-5.956932, 83.511414, 0), V(-5.811845, 83.471186, 0), V(-5.660471, 83.437442, 0), V(-5.503192, 83.410878, 0), V(-5.340394, 83.38885, 0), V(-5.171679, 83.373809, 0), V(-4.997196, 83.365255, 0), V(-4.878843, 83.363861, 0), V(-4.818793, 83.363154, 0)], [4, 1, 1, 1, 1, 1, 1, 1, 1, 1, 1, 1, 1, 1, 1, 1, 4], [0, 0.884547214, 1.775380039, 2.665826882, 3.559504879, 4.469980105, 5.390593375, 6.331323642, 7.291529335, 8.271228182, 9.282197471, 10.317896576, 11.387954191, 12.488469157, 13.620281033, 14.792583212, 16], False, 3, [1, 1, 1, 1, 1, 1, 1, 1, 1, 1, 1, 1, 1, 1, 1, 1, 1, 1, 1], False), False)  # 40
sketch5.addGeometry(Part.BSplineCurve([V(-7.638889, 85.889196, 0), V(-7.637207, 85.803738, 0), V(-7.63391, 85.636236, 0), V(-7.602258, 85.390511, 0), V(-7.552819, 85.155514, 0), V(-7.483441, 84.93071, 0), V(-7.392925, 84.71711, 0), V(-7.282239, 84.514449, 0), V(-7.154063, 84.320649, 0), V(-7.052138, 84.203388, 0), V(-7.000868, 84.144404, 0)], [4, 1, 1, 1, 1, 1, 1, 1, 4], [0, 1.077719575, 2.112379846, 3.120154608, 4.104514829, 5.075810074, 6.041644454, 7.014920789, 8], False, 3, [1, 1, 1, 1, 1, 1, 1, 1, 1, 1, 1], False), False)  # 41
sketch5.addGeometry(Part.BSplineCurve([V(-4.618056, 88.363154, 0), V(-4.709216, 88.362297, 0), V(-4.886192, 88.360634, 0), V(-5.143131, 88.348522, 0), V(-5.383558, 88.329666, 0), V(-5.606594, 88.301674, 0), V(-5.812979, 88.265774, 0), V(-6.002805, 88.223335, 0), V(-6.175758, 88.171374, 0), V(-6.333132, 88.111066, 0), V(-6.47895, 88.041956, 0), V(-6.615342, 87.961365, 0), V(-6.744883, 87.871108, 0), V(-6.867564, 87.770665, 0), V(-6.982058, 87.658737, 0), V(-7.090192, 87.536834, 0), V(-7.18996, 87.403571, 0), V(-7.282848, 87.261382, 0), V(-7.366406, 87.110593, 0), V(-7.439023, 86.953093, 0), V(-7.500936, 86.789921, 0), V(-7.552365, 86.621149, 0), V(-7.591411, 86.446282, 0), V(-7.617611, 86.265587, 0), V(-7.636298, 86.079471, 0), V(-7.638016, 85.953263, 0), V(-7.638889, 85.889196, 0)], [4, 1, 1, 1, 1, 1, 1, 1, 1, 1, 1, 1, 1, 1, 1, 1, 1, 1, 1, 1, 1, 1, 1, 1, 4], [0, 1.467398357, 2.848763231, 4.139747069, 5.348651221, 6.465709142, 7.510884705, 8.477890948, 9.369935066, 10.221521294, 11.072291092, 11.917022873, 12.760911509, 13.621447043, 14.491775058, 15.381421868, 16.298684439, 17.223858558, 18.153856654, 19.088127867, 20.031156851, 20.991691223, 21.969088183, 22.969046064, 24], False, 3, [1, 1, 1, 1, 1, 1, 1, 1, 1, 1, 1, 1, 1, 1, 1, 1, 1, 1, 1, 1, 1, 1, 1, 1, 1, 1, 1], False), False)  # 42
sketch5.addGeometry(Part.LineSegment(V(-4.618056, 88.363154, 0), V(-2.569444, 88.363154, 0)), False)  # 43
sketch5.addGeometry(Part.LineSegment(V(-2.569444, 88.363154, 0), V(-2.569444, 88.224265, 0)), False)  # 44
sketch5.addGeometry(Part.LineSegment(V(-2.569444, 88.224265, 0), V(-2.750651, 88.224265, 0)), False)  # 45
sketch5.addGeometry(Part.BSplineCurve([V(-3.164062, 88.058249, 0), V(-3.139179, 88.083923, 0), V(-3.089156, 88.135534, 0), V(-2.990505, 88.188118, 0), V(-2.875797, 88.218438, 0), V(-2.793897, 88.222252, 0), V(-2.750651, 88.224265, 0)], [4, 1, 1, 1, 4], [0, 0.928124107, 1.865794122, 2.873060895, 4], False, 3, [1, 1, 1, 1, 1, 1, 1], False), False)  # 46
sketch5.addGeometry(Part.BSplineCurve([V(-3.263889, 87.460376, 0), V(-3.26394, 87.498365, 0), V(-3.264036, 87.570411, 0), V(-3.257815, 87.673129, 0), V(-3.251005, 87.7648, 0), V(-3.240368, 87.845256, 0), V(-3.226502, 87.914658, 0), V(-3.209227, 87.972567, 0), V(-3.190986, 88.021275, 0), V(-3.172542, 88.046605, 0), V(-3.164062, 88.058249, 0)], [4, 1, 1, 1, 1, 1, 1, 1, 4], [0, 1.484107705, 2.814555366, 4.019988359, 5.075390106, 5.984573864, 6.780592097, 7.4394417, 8], False, 3, [1, 1, 1, 1, 1, 1, 1, 1, 1, 1, 1], False), False)  # 47
sketch5.addGeometry(Part.LineSegment(V(-3.263889, 87.460376, 0), V(-3.263889, 84.265932, 0)), False)  # 48
sketch5.addGeometry(Part.BSplineCurve([V(-3.185764, 83.709291, 0), V(-3.192234, 83.721078, 0), V(-3.206477, 83.747025, 0), V(-3.222185, 83.793167, 0), V(-3.234545, 83.84855, 0), V(-3.245515, 83.913384, 0), V(-3.253685, 83.987662, 0), V(-3.260519, 84.071951, 0), V(-3.26322, 84.165726, 0), V(-3.263659, 84.231571, 0), V(-3.263889, 84.265932, 0)], [4, 1, 1, 1, 1, 1, 1, 1, 4], [0, 0.568141805, 1.250715472, 2.052584266, 2.968455247, 4.031571596, 5.213625719, 6.545948453, 8], False, 3, [1, 1, 1, 1, 1, 1, 1, 1, 1, 1, 1], False), False)  # 49
sketch5.addGeometry(Part.BSplineCurve([V(-2.750651, 83.502043, 0), V(-2.775279, 83.502624, 0), V(-2.822935, 83.503749, 0), V(-2.891719, 83.513618, 0), V(-2.955083, 83.529821, 0), V(-3.013066, 83.552193, 0), V(-3.064518, 83.582576, 0), V(-3.112167, 83.616724, 0), V(-3.152665, 83.659924, 0), V(-3.174633, 83.692689, 0), V(-3.185764, 83.709291, 0)], [4, 1, 1, 1, 1, 1, 1, 1, 4], [0, 1.170016541, 2.263943595, 3.293731011, 4.273677885, 5.205400736, 6.126759273, 7.050839703, 8], False, 3, [1, 1, 1, 1, 1, 1, 1, 1, 1, 1, 1], False), False)  # 50
sketch5.addGeometry(Part.LineSegment(V(-2.750651, 83.502043, 0), V(-2.569444, 83.502043, 0)), False)  # 51
sketch5.addGeometry(Part.LineSegment(V(-3.958333, 83.677824, 0), V(-3.958333, 88.045229, 0)), False)  # 52
sketch5.addGeometry(Part.BSplineCurve([V(-4.735243, 88.154821, 0), V(-4.676596, 88.153531, 0), V(-4.554627, 88.15085, 0), V(-4.366166, 88.128921, 0), V(-4.165587, 88.093951, 0), V(-4.029075, 88.061859, 0), V(-3.958333, 88.045229, 0)], [4, 1, 1, 1, 4], [0, 0.894670856, 1.860663297, 2.891378894, 4], False, 3, [1, 1, 1, 1, 1, 1, 1], False), False)  # 53
sketch5.addGeometry(Part.BSplineCurve([V(-6.805556, 85.863154, 0), V(-6.804053, 85.949672, 0), V(-6.801122, 86.118454, 0), V(-6.773595, 86.364194, 0), V(-6.728328, 86.595918, 0), V(-6.664224, 86.813468, 0), V(-6.582946, 87.017707, 0), V(-6.48307, 87.207599, 0), V(-6.36345, 87.382265, 0), V(-6.228147, 87.542541, 0), V(-6.078871, 87.686749, 0), V(-5.917651, 87.812195, 0), V(-5.745817, 87.918102, 0), V(-5.564062, 88.006056, 0), V(-5.370423, 88.071164, 0), V(-5.168126, 88.121016, 0), V(-4.954853, 88.14911, 0), V(-4.809468, 88.15289, 0), V(-4.735243, 88.154821, 0)], [4, 1, 1, 1, 1, 1, 1, 1, 1, 1, 1, 1, 1, 1, 1, 1, 4], [0, 1.193396302, 2.328127765, 3.406675227, 4.447298146, 5.452780722, 6.435033879, 7.401194227, 8.367973033, 9.324444072, 10.259799173, 11.180785527, 12.104889921, 13.03919269, 13.994204462, 14.975963072, 16], False, 3, [1, 1, 1, 1, 1, 1, 1, 1, 1, 1, 1, 1, 1, 1, 1, 1, 1, 1, 1], False), False)  # 54
sketch5.addGeometry(Part.BSplineCurve([V(-4.765625, 83.571487, 0), V(-4.837347, 83.573276, 0), V(-4.978514, 83.576796, 0), V(-5.185234, 83.607181, 0), V(-5.383178, 83.654529, 0), V(-5.57174, 83.722019, 0), V(-5.750747, 83.809356, 0), V(-5.919998, 83.916308, 0), V(-6.078681, 84.043566, 0), V(-6.228599, 84.186957, 0), V(-6.363423, 84.348473, 0), V(-6.482823, 84.523934, 0), V(-6.582727, 84.71375, 0), V(-6.664236, 84.917153, 0), V(-6.728485, 85.133964, 0), V(-6.773471, 85.365025, 0), V(-6.801106, 85.609656, 0), V(-6.804049, 85.777358, 0), V(-6.805556, 85.863154, 0)], [4, 1, 1, 1, 1, 1, 1, 1, 1, 1, 1, 1, 1, 1, 1, 1, 4], [0, 0.997996022, 1.964292496, 2.902202989, 3.827540679, 4.746320531, 5.669683403, 6.608607029, 7.573643287, 8.552931756, 9.531909504, 10.522958759, 11.532773866, 12.577887131, 13.666093008, 14.805981493, 16], False, 3, [1, 1, 1, 1, 1, 1, 1, 1, 1, 1, 1, 1, 1, 1, 1, 1, 1, 1, 1], False), False)  # 55
sketch5.addGeometry(Part.BSplineCurve([V(-3.958333, 83.677824, 0), V(-4.035222, 83.661428, 0), V(-4.181921, 83.630144, 0), V(-4.393973, 83.598598, 0), V(-4.586085, 83.575518, 0), V(-4.708058, 83.57278, 0), V(-4.765625, 83.571487, 0)], [4, 1, 1, 1, 4], [0, 1.156263879, 2.206090244, 3.153339526, 4], False, 3, [1, 1, 1, 1, 1, 1, 1], False), False)  # 56
sketch5.addConstraint([
    Sketcher.Constraint("Block", 2),
    Sketcher.Constraint("Block", 3),
    Sketcher.Constraint("Block", 4),
    Sketcher.Constraint("Block", 5),
    Sketcher.Constraint("Block", 6),
    Sketcher.Constraint("Block", 7),
    Sketcher.Constraint("Block", 8),
    Sketcher.Constraint("Block", 9),
    Sketcher.Constraint("Block", 11),
    Sketcher.Constraint("Block", 12),
    Sketcher.Constraint("Block", 13),
    Sketcher.Constraint("Block", 14),
    Sketcher.Constraint("Block", 18),
    Sketcher.Constraint("Block", 19),
    Sketcher.Constraint("Block", 23),
    Sketcher.Constraint("Block", 27),
    Sketcher.Constraint("Block", 28),
    Sketcher.Constraint("Block", 32),
    Sketcher.Constraint("Block", 33),
    Sketcher.Constraint("Block", 40),
    Sketcher.Constraint("Block", 41),
    Sketcher.Constraint("Block", 42),
    Sketcher.Constraint("Block", 46),
    Sketcher.Constraint("Block", 47),
    Sketcher.Constraint("Block", 49),
    Sketcher.Constraint("Block", 50),
    Sketcher.Constraint("Block", 53),
    Sketcher.Constraint("Block", 54),
    Sketcher.Constraint("Block", 55),
    Sketcher.Constraint("Block", 56),
    Sketcher.Constraint("Coincident", 0, 2, 1, 1),
    Sketcher.Constraint("Coincident", 1, 2, 2, 2),
    Sketcher.Constraint("Coincident", 9, 1, 10, 1),
    Sketcher.Constraint("Coincident", 10, 2, 11, 2),
    Sketcher.Constraint("Coincident", 14, 1, 15, 1),
    Sketcher.Constraint("Coincident", 15, 2, 0, 1),
    Sketcher.Constraint("Coincident", 16, 2, 17, 1),
    Sketcher.Constraint("Coincident", 17, 2, 18, 2),
    Sketcher.Constraint("Coincident", 19, 1, 20, 1),
    Sketcher.Constraint("Coincident", 20, 2, 21, 1),
    Sketcher.Constraint("Coincident", 21, 2, 22, 1),
    Sketcher.Constraint("Coincident", 22, 2, 23, 2),
    Sketcher.Constraint("Coincident", 23, 1, 24, 1),
    Sketcher.Constraint("Coincident", 24, 2, 25, 1),
    Sketcher.Constraint("Coincident", 25, 2, 26, 1),
    Sketcher.Constraint("Coincident", 26, 2, 27, 2),
    Sketcher.Constraint("Coincident", 28, 1, 29, 1),
    Sketcher.Constraint("Coincident", 29, 2, 30, 1),
    Sketcher.Constraint("Coincident", 30, 2, 31, 1),
    Sketcher.Constraint("Coincident", 31, 2, 32, 2),
    Sketcher.Constraint("Coincident", 33, 1, 34, 1),
    Sketcher.Constraint("Coincident", 34, 2, 16, 1),
    Sketcher.Constraint("Coincident", 38, 2, 39, 1),
    Sketcher.Constraint("Coincident", 39, 2, 40, 2),
    Sketcher.Constraint("Coincident", 42, 1, 43, 1),
    Sketcher.Constraint("Coincident", 43, 2, 44, 1),
    Sketcher.Constraint("Coincident", 44, 2, 45, 1),
    Sketcher.Constraint("Coincident", 45, 2, 46, 2),
    Sketcher.Constraint("Coincident", 47, 1, 48, 1),
    Sketcher.Constraint("Coincident", 48, 2, 49, 2),
    Sketcher.Constraint("Coincident", 50, 1, 51, 1),
    Sketcher.Constraint("Coincident", 51, 2, 38, 1),
    Sketcher.Constraint("Coincident", 52, 2, 53, 2),
    Sketcher.Constraint("Coincident", 56, 1, 52, 1),
    Sketcher.Constraint("Horizontal", 1),
    Sketcher.Constraint("Horizontal", 15),
    Sketcher.Constraint("Horizontal", 16),
    Sketcher.Constraint("Vertical", 20),
    Sketcher.Constraint("Horizontal", 21),
    Sketcher.Constraint("Vertical", 22),
    Sketcher.Constraint("Horizontal", 25),
    Sketcher.Constraint("Vertical", 29),
    Sketcher.Constraint("Horizontal", 30),
    Sketcher.Constraint("Vertical", 31),
    Sketcher.Constraint("Horizontal", 35),
    Sketcher.Constraint("Vertical", 38),
    Sketcher.Constraint("Horizontal", 39),
    Sketcher.Constraint("Horizontal", 43),
    Sketcher.Constraint("Vertical", 44),
    Sketcher.Constraint("Horizontal", 45),
    Sketcher.Constraint("Horizontal", 51),
    Sketcher.Constraint("DistanceY", 20, 2, 10, 2, 1.25),
    Sketcher.Constraint("DistanceY", 29, 2, 10, 2, 1.25),
    Sketcher.Constraint("DistanceY", 30, 2, 35, 2, 1.875),
    Sketcher.Constraint("DistanceX", 1, 1, 1, 2, 0.138889),
    Sketcher.Constraint("DistanceX", 15, 2, 15, 1, 0.138889),
    Sketcher.Constraint("DistanceX", 25, 1, 25, 2, 0.136719),
    Sketcher.Constraint("DistanceX", 35, 1, 35, 2, 1.810981),
    Sketcher.Constraint("DistanceX", 39, 2, 39, 1, 2.249349),
    Sketcher.Constraint("DistanceX", 43, 1, 43, 2, 2.048611),
    Sketcher.Constraint("DistanceY", -1, 1, 24, 2, 88.432598),
    Sketcher.Constraint("DistanceX", 21, 2, 16, 2, 1.896701),
    Sketcher.Constraint("DistanceX", 16, 2, 35, 2, 1.896701),
    Sketcher.Constraint("Distance", 37, 2.179772),
    Sketcher.Constraint("DistanceX", 16, 2, 16, 1, 1.993273),
    Sketcher.Constraint("DistanceY", -1, 1, 16, 2, 85.029821),
    Sketcher.Constraint("DistanceX", -1, 1, 24, 2, 0.096571),
    Sketcher.Constraint("DistanceX", 36, 2, 35, 2, 0.961372),
])
pocket2 = body.newObject("PartDesign::Pocket", "Pocket001")
pocket2.Profile = sketch5
pocket2.Length = 1
pocket2.Reversed = True

doc.recompute()
